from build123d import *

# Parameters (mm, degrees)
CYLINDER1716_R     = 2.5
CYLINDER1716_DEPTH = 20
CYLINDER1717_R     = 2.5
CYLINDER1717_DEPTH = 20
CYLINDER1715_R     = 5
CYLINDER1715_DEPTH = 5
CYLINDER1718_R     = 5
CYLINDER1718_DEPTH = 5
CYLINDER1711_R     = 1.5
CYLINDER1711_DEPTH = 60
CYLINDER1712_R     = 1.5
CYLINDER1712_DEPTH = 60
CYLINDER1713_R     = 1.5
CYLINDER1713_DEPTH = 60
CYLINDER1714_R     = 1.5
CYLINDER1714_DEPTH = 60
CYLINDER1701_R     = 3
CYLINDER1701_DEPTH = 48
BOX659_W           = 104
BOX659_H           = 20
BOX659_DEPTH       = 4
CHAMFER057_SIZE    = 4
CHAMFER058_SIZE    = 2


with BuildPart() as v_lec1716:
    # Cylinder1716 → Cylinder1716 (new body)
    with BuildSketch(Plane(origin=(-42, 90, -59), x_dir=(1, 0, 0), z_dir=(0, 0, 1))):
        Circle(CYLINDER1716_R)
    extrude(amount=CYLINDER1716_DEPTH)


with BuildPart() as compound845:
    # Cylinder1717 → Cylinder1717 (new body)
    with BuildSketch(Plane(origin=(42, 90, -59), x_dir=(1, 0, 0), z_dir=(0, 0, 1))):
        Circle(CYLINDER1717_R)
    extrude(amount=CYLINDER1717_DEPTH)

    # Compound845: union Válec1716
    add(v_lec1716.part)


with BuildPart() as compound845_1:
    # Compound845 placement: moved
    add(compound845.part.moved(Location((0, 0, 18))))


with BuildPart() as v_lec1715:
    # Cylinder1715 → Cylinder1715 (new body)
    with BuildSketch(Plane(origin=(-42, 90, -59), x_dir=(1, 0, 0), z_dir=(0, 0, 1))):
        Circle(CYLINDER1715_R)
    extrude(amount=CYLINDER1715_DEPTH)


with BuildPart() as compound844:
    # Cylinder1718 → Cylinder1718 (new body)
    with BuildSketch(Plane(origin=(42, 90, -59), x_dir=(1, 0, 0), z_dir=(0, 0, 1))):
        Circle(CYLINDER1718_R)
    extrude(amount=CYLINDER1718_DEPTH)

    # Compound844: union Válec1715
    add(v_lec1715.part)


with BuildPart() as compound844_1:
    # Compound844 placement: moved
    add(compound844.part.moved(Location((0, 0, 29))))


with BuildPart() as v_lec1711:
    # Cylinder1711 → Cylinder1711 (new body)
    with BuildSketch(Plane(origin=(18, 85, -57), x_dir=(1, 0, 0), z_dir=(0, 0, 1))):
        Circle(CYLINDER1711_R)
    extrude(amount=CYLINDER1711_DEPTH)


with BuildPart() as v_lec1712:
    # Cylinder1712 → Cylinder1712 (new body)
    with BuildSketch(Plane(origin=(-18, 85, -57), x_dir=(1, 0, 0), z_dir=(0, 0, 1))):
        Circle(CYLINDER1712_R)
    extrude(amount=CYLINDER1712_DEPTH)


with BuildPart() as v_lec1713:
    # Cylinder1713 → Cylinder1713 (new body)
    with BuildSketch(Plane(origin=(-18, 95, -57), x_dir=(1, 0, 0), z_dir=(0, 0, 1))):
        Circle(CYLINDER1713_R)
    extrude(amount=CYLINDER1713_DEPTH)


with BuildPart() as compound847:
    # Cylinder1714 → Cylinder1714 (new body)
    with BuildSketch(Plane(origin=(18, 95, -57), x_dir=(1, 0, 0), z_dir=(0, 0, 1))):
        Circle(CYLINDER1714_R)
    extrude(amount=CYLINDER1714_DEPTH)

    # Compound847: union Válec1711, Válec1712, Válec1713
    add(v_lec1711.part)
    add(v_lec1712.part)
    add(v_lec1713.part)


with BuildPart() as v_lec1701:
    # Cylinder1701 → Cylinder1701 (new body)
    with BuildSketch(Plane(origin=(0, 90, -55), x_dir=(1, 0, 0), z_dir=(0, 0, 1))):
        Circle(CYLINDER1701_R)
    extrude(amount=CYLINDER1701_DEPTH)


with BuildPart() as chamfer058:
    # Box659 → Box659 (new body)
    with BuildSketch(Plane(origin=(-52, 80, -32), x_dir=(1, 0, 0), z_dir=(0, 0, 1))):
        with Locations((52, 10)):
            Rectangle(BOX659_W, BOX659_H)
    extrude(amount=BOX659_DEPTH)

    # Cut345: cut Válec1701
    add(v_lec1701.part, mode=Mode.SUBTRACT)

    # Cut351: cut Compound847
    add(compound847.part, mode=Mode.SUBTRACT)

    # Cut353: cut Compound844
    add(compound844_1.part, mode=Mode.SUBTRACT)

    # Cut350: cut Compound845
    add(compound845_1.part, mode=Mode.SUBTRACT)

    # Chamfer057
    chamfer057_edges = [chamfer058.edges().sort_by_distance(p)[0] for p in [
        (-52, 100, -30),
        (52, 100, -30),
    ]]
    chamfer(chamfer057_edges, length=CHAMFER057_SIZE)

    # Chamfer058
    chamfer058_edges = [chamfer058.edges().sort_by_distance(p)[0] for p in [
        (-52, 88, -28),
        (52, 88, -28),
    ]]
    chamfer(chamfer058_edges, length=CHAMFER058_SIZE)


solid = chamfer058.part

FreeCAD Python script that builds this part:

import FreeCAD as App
import Part
import Sketcher


def edges_at(feature, points):
    """Names of the edges that pass closest to the given points."""
    edges = feature.Shape.Edges
    near = lambda p: min(range(len(edges)), key=lambda i: edges[i].distToShape(Part.Vertex(*p))[0])
    return sorted({f"Edge{near(p) + 1}" for p in points})


def add_polygon(sketch, points):
    """Adds a closed chain of lines whose ends are joined by coincident constraints."""
    first, n = sketch.GeometryCount, len(points)
    for a, b in zip(points, points[1:] + points[:1]):
        sketch.addGeometry(Part.LineSegment(App.Vector(*a, 0), App.Vector(*b, 0)), False)
    for i in range(n):
        sketch.addConstraint(Sketcher.Constraint("Coincident", first + i, 2, first + (i + 1) % n, 1))

doc = App.newDocument("Part")
body = doc.addObject("PartDesign::Body", "Body")

# Sketch on XY plane
sketch1 = body.newObject("Sketcher::SketchObject", "Sketch")
sketch1.AttachmentSupport = (doc.getObject("XY_Plane"), [""])
sketch1.MapMode = "FlatFace"
sketch1.AttachmentOffset = App.Placement(App.Vector(0, 0, -59), App.Rotation())
sketch1.addGeometry(Part.Circle(App.Vector(-42, 90, 0), App.Vector(0, 0, 1), 2.5), False)
sketch1.addConstraint([
    Sketcher.Constraint("Diameter", 0, 5.0),
    Sketcher.Constraint("DistanceX", 0, 3, -1, 1, 42.0),
    Sketcher.Constraint("DistanceY", -1, 1, 0, 3, 90.0),
])
pad1 = body.newObject("PartDesign::Pad", "Pad")
pad1.Profile = sketch1
pad1.Length = 20
body2 = doc.addObject("PartDesign::Body", "Body001")
body2.AllowCompound = True

# Sketch on XY plane
sketch2 = body2.newObject("Sketcher::SketchObject", "Sketch001")
sketch2.AttachmentSupport = (doc.getObject("XY_Plane001"), [""])
sketch2.MapMode = "FlatFace"
sketch2.AttachmentOffset = App.Placement(App.Vector(0, 0, -59), App.Rotation())
sketch2.addGeometry(Part.Circle(App.Vector(42, 90, 0), App.Vector(0, 0, 1), 2.5), False)
sketch2.addConstraint([
    Sketcher.Constraint("Diameter", 0, 5.0),
    Sketcher.Constraint("DistanceX", -1, 1, 0, 3, 42.0),
    Sketcher.Constraint("DistanceY", -1, 1, 0, 3, 90.0),
])
pad2 = body2.newObject("PartDesign::Pad", "Pad001")
pad2.Profile = sketch2
pad2.Length = 20
doc.recompute()

boolean = body2.newObject("PartDesign::Boolean", "Boolean")
boolean.Type = "Fuse"
boolean.addObjects([body])
body3 = doc.addObject("PartDesign::Body", "Body002")
body3.AllowCompound = True
doc.recompute()

body2.Placement = App.Placement(App.Vector(0, 0, 18), App.Rotation(App.Vector(0, 0, 1), 0))
boolean2 = body3.newObject("PartDesign::Boolean", "Boolean001")
boolean2.Type = "Fuse"
boolean2.addObjects([body2])
body4 = doc.addObject("PartDesign::Body", "Body003")

# Sketch on XY plane
sketch3 = body4.newObject("Sketcher::SketchObject", "Sketch002")
sketch3.AttachmentSupport = (doc.getObject("XY_Plane003"), [""])
sketch3.MapMode = "FlatFace"
sketch3.AttachmentOffset = App.Placement(App.Vector(0, 0, -59), App.Rotation())
sketch3.addGeometry(Part.Circle(App.Vector(-42, 90, 0), App.Vector(0, 0, 1), 5), False)
sketch3.addConstraint([
    Sketcher.Constraint("Diameter", 0, 10.0),
    Sketcher.Constraint("DistanceX", 0, 3, -1, 1, 42.0),
    Sketcher.Constraint("DistanceY", -1, 1, 0, 3, 90.0),
])
pad3 = body4.newObject("PartDesign::Pad", "Pad002")
pad3.Profile = sketch3
pad3.Length = 5
body5 = doc.addObject("PartDesign::Body", "Body004")
body5.AllowCompound = True

# Sketch on XY plane
sketch4 = body5.newObject("Sketcher::SketchObject", "Sketch003")
sketch4.AttachmentSupport = (doc.getObject("XY_Plane004"), [""])
sketch4.MapMode = "FlatFace"
sketch4.AttachmentOffset = App.Placement(App.Vector(0, 0, -59), App.Rotation())
sketch4.addGeometry(Part.Circle(App.Vector(42, 90, 0), App.Vector(0, 0, 1), 5), False)
sketch4.addConstraint([
    Sketcher.Constraint("Diameter", 0, 10.0),
    Sketcher.Constraint("DistanceX", -1, 1, 0, 3, 42.0),
    Sketcher.Constraint("DistanceY", -1, 1, 0, 3, 90.0),
])
pad4 = body5.newObject("PartDesign::Pad", "Pad003")
pad4.Profile = sketch4
pad4.Length = 5
doc.recompute()

boolean3 = body5.newObject("PartDesign::Boolean", "Boolean002")
boolean3.Type = "Fuse"
boolean3.addObjects([body4])
body6 = doc.addObject("PartDesign::Body", "Body005")
body6.AllowCompound = True
doc.recompute()

body5.Placement = App.Placement(App.Vector(0, 0, 29), App.Rotation(App.Vector(0, 0, 1), 0))
boolean4 = body6.newObject("PartDesign::Boolean", "Boolean003")
boolean4.Type = "Fuse"
boolean4.addObjects([body5])
body7 = doc.addObject("PartDesign::Body", "Body006")

# Sketch on XY plane
sketch5 = body7.newObject("Sketcher::SketchObject", "Sketch004")
sketch5.AttachmentSupport = (doc.getObject("XY_Plane006"), [""])
sketch5.MapMode = "FlatFace"
sketch5.AttachmentOffset = App.Placement(App.Vector(0, 0, -57), App.Rotation())
sketch5.addGeometry(Part.Circle(App.Vector(18, 85, 0), App.Vector(0, 0, 1), 1.5), False)
sketch5.addConstraint([
    Sketcher.Constraint("Diameter", 0, 3.0),
    Sketcher.Constraint("DistanceX", -1, 1, 0, 3, 18.0),
    Sketcher.Constraint("DistanceY", -1, 1, 0, 3, 85.0),
])
pad5 = body7.newObject("PartDesign::Pad", "Pad004")
pad5.Profile = sketch5
pad5.Length = 60
body8 = doc.addObject("PartDesign::Body", "Body007")

# Sketch on XY plane
sketch6 = body8.newObject("Sketcher::SketchObject", "Sketch005")
sketch6.AttachmentSupport = (doc.getObject("XY_Plane007"), [""])
sketch6.MapMode = "FlatFace"
sketch6.AttachmentOffset = App.Placement(App.Vector(0, 0, -57), App.Rotation())
sketch6.addGeometry(Part.Circle(App.Vector(-18, 85, 0), App.Vector(0, 0, 1), 1.5), False)
sketch6.addConstraint([
    Sketcher.Constraint("Diameter", 0, 3.0),
    Sketcher.Constraint("DistanceX", 0, 3, -1, 1, 18.0),
    Sketcher.Constraint("DistanceY", -1, 1, 0, 3, 85.0),
])
pad6 = body8.newObject("PartDesign::Pad", "Pad005")
pad6.Profile = sketch6
pad6.Length = 60
body9 = doc.addObject("PartDesign::Body", "Body008")

# Sketch on XY plane
sketch7 = body9.newObject("Sketcher::SketchObject", "Sketch006")
sketch7.AttachmentSupport = (doc.getObject("XY_Plane008"), [""])
sketch7.MapMode = "FlatFace"
sketch7.AttachmentOffset = App.Placement(App.Vector(0, 0, -57), App.Rotation())
sketch7.addGeometry(Part.Circle(App.Vector(-18, 95, 0), App.Vector(0, 0, 1), 1.5), False)
sketch7.addConstraint([
    Sketcher.Constraint("Diameter", 0, 3.0),
    Sketcher.Constraint("DistanceX", 0, 3, -1, 1, 18.0),
    Sketcher.Constraint("DistanceY", -1, 1, 0, 3, 95.0),
])
pad7 = body9.newObject("PartDesign::Pad", "Pad006")
pad7.Profile = sketch7
pad7.Length = 60
body10 = doc.addObject("PartDesign::Body", "Body009")
body10.AllowCompound = True

# Sketch on XY plane
sketch8 = body10.newObject("Sketcher::SketchObject", "Sketch007")
sketch8.AttachmentSupport = (doc.getObject("XY_Plane009"), [""])
sketch8.MapMode = "FlatFace"
sketch8.AttachmentOffset = App.Placement(App.Vector(0, 0, -57), App.Rotation())
sketch8.addGeometry(Part.Circle(App.Vector(18, 95, 0), App.Vector(0, 0, 1), 1.5), False)
sketch8.addConstraint([
    Sketcher.Constraint("Diameter", 0, 3.0),
    Sketcher.Constraint("DistanceX", -1, 1, 0, 3, 18.0),
    Sketcher.Constraint("DistanceY", -1, 1, 0, 3, 95.0),
])
pad8 = body10.newObject("PartDesign::Pad", "Pad007")
pad8.Profile = sketch8
pad8.Length = 60
doc.recompute()

boolean5 = body10.newObject("PartDesign::Boolean", "Boolean004")
boolean5.Type = "Fuse"
boolean5.addObjects([body7])
doc.recompute()

boolean6 = body10.newObject("PartDesign::Boolean", "Boolean005")
boolean6.Type = "Fuse"
boolean6.addObjects([body8])
doc.recompute()

boolean7 = body10.newObject("PartDesign::Boolean", "Boolean006")
boolean7.Type = "Fuse"
boolean7.addObjects([body9])
body11 = doc.addObject("PartDesign::Body", "Body010")

# Sketch on XY plane
sketch9 = body11.newObject("Sketcher::SketchObject", "Sketch008")
sketch9.AttachmentSupport = (doc.getObject("XY_Plane010"), [""])
sketch9.MapMode = "FlatFace"
sketch9.AttachmentOffset = App.Placement(App.Vector(0, 0, -55), App.Rotation())
sketch9.addGeometry(Part.Circle(App.Vector(0, 90, 0), App.Vector(0, 0, 1), 3), False)
sketch9.addConstraint([
    Sketcher.Constraint("PointOnObject", 0, 3, -2),
    Sketcher.Constraint("Diameter", 0, 6.0),
    Sketcher.Constraint("DistanceY", -1, 1, 0, 3, 90.0),
])
pad9 = body11.newObject("PartDesign::Pad", "Pad008")
pad9.Profile = sketch9
pad9.Length = 48
body12 = doc.addObject("PartDesign::Body", "Body011")

# Sketch on XY plane
sketch10 = body12.newObject("Sketcher::SketchObject", "Sketch009")
sketch10.AttachmentSupport = (doc.getObject("XY_Plane011"), [""])
sketch10.MapMode = "FlatFace"
sketch10.AttachmentOffset = App.Placement(App.Vector(0, 0, -32), App.Rotation())
add_polygon(sketch10, [(-52, 100), (-52, 80), (52, 80), (52, 100)])  # lines 0-3
sketch10.addConstraint([
    Sketcher.Constraint("Vertical", 0),
    Sketcher.Constraint("Horizontal", 1),
    Sketcher.Constraint("Vertical", 2),
    Sketcher.Constraint("Horizontal", 3),
    Sketcher.Constraint("DistanceX", 1, 1, 1, 2, 104.0),
    Sketcher.Constraint("DistanceY", 0, 2, 0, 1, 20.0),
    Sketcher.Constraint("DistanceX", 0, 2, -1, 1, 52.0),
    Sketcher.Constraint("DistanceY", -1, 1, 0, 2, 80.0),
])
pad10 = body12.newObject("PartDesign::Pad", "Pad009")
pad10.Profile = sketch10
pad10.Length = 4
doc.recompute()

boolean8 = body12.newObject("PartDesign::Boolean", "Boolean007")
boolean8.Type = "Cut"
boolean8.addObjects([body11])
doc.recompute()

boolean9 = body12.newObject("PartDesign::Boolean", "Boolean008")
boolean9.Type = "Cut"
boolean9.addObjects([body10])
doc.recompute()

boolean10 = body12.newObject("PartDesign::Boolean", "Boolean009")
boolean10.Type = "Cut"
boolean10.addObjects([body6])
doc.recompute()

boolean11 = body12.newObject("PartDesign::Boolean", "Boolean010")
boolean11.Type = "Cut"
boolean11.addObjects([body3])
doc.recompute()

chamfer = body12.newObject("PartDesign::Chamfer", "Chamfer")
chamfer.Base = (boolean11, edges_at(boolean11, [(-52, 100, -30), (52, 100, -30)]))
chamfer.Size = 4
doc.recompute()

chamfer2 = body12.newObject("PartDesign::Chamfer", "Chamfer001")
chamfer2.Base = (chamfer, edges_at(chamfer, [(-52, 88, -28), (52, 88, -28)]))
chamfer2.Size = 2

doc.recompute()
